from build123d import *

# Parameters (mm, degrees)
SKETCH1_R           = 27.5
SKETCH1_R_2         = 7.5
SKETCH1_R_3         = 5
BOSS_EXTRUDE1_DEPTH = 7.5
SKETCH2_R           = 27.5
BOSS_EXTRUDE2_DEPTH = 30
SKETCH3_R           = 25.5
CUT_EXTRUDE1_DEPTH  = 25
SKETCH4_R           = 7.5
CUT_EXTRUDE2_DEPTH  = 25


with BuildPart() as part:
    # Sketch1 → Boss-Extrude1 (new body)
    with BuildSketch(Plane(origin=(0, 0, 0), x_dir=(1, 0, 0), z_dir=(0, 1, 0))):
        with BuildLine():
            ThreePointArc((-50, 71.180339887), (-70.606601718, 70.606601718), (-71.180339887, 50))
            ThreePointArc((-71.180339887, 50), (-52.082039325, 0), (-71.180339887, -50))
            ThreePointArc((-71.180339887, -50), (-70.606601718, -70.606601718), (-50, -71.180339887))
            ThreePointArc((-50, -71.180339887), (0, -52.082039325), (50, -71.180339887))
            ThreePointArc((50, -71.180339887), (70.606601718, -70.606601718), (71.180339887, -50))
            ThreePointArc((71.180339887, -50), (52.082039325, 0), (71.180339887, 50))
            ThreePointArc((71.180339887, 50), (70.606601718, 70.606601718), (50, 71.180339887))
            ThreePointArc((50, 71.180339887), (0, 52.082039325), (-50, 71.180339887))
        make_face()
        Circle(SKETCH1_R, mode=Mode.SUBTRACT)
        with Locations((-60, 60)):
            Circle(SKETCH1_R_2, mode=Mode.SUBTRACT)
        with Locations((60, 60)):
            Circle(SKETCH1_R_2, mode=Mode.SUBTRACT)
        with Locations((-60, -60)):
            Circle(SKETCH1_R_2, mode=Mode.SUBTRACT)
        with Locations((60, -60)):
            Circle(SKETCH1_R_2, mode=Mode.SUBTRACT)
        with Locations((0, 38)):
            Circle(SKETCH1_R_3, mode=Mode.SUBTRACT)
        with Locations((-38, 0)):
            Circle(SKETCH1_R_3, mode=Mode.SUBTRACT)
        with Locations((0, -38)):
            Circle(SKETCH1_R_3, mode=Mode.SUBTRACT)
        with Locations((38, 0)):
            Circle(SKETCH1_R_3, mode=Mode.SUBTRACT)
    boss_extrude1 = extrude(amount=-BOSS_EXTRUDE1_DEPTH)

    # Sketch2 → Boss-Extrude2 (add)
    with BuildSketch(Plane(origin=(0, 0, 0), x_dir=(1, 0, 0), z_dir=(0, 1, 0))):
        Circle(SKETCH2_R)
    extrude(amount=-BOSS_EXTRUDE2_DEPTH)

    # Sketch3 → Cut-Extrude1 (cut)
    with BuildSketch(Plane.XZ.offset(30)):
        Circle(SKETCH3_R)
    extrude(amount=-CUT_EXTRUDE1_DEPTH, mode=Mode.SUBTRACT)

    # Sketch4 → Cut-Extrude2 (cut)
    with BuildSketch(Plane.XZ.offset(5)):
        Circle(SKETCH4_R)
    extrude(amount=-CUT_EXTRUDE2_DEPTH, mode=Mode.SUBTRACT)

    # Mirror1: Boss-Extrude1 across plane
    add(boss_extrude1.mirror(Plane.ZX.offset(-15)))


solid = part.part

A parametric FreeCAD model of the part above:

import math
import FreeCAD as App
import Part
import Sketcher
Q = App.Units.Quantity

doc = App.newDocument("Part")
params = doc.addObject("Spreadsheet::Sheet", "Params")
for row, (alias, value) in enumerate([
    ("sketch1_diameter", "15 mm"),
    ("sketch1_diameter2", "10 mm"),
    ("sketch1_diameter3", "55 mm"),
    ("sketch1_radius", "15 mm"),
    ("sketch1_radius2", "75 mm"),
    ("pad1_length", "7.5 mm"),
    ("sketch2_diameter", "55 mm"),
    ("pad2_length", "30 mm"),
    ("sketch3_diameter", "51 mm"),
    ("pocket1_length", "25 mm"),
    ("sketch4_diameter", "15 mm"),
    ("pocket2_length", "25 mm"),
], start=1):
    params.set(f"A{row}", alias)
    params.set(f"B{row}", "=" + value)
    params.setAlias(f"B{row}", alias)

body = doc.addObject("PartDesign::Body", "Body")

# Sketch on XZ plane
sketch1 = body.newObject("Sketcher::SketchObject", "Sketch")
sketch1.AttachmentSupport = (doc.getObject("XZ_Plane"), [""])
sketch1.MapMode = "FlatFace"
sketch1.addGeometry(Part.ArcOfCircle(Part.Circle(App.Vector(-60, -60, 0), App.Vector(0, 0, 1), 15), math.radians(138.189685), math.radians(311.810315)), False)
sketch1.addGeometry(Part.ArcOfCircle(Part.Circle(App.Vector(-127.082039, 0, 0), App.Vector(0, 0, 1), 75), math.radians(-41.810315), math.radians(41.810315)), False)
sketch1.addGeometry(Part.ArcOfCircle(Part.Circle(App.Vector(-60, 60, 0), App.Vector(0, 0, 1), 15), math.radians(48.189685), math.radians(221.810315)), False)
sketch1.addGeometry(Part.ArcOfCircle(Part.Circle(App.Vector(0, 127.082039, 0), App.Vector(0, 0, 1), 75), math.radians(-131.810315), math.radians(-48.189685)), False)
sketch1.addGeometry(Part.ArcOfCircle(Part.Circle(App.Vector(60, 60, 0), App.Vector(0, 0, 1), 15), math.radians(-41.810315), math.radians(131.810315)), False)
sketch1.addGeometry(Part.ArcOfCircle(Part.Circle(App.Vector(127.082039, 0, 0), App.Vector(0, 0, 1), 75), math.radians(138.189685), math.radians(221.810315)), False)
sketch1.addGeometry(Part.ArcOfCircle(Part.Circle(App.Vector(60, -60, 0), App.Vector(0, 0, 1), 15), math.radians(-131.810315), math.radians(41.810315)), False)
sketch1.addGeometry(Part.ArcOfCircle(Part.Circle(App.Vector(0, -127.082039, 0), App.Vector(0, 0, 1), 75), math.radians(48.189685), math.radians(131.810315)), False)
sketch1.addGeometry(Part.Circle(App.Vector(-60, 60, 0), App.Vector(0, 0, 1), 7.5), False)
sketch1.addGeometry(Part.Circle(App.Vector(0, 38, 0), App.Vector(0, 0, 1), 5), False)
sketch1.addGeometry(Part.Circle(App.Vector(60, 60, 0), App.Vector(0, 0, 1), 7.5), False)
sketch1.addGeometry(Part.Circle(App.Vector(-38, 0, 0), App.Vector(0, 0, 1), 5), False)
sketch1.addGeometry(Part.Circle(App.Vector(-60, -60, 0), App.Vector(0, 0, 1), 7.5), False)
sketch1.addGeometry(Part.Circle(App.Vector(0, 0, 0), App.Vector(0, 0, 1), 27.5), False)
sketch1.addGeometry(Part.Circle(App.Vector(38, 0, 0), App.Vector(0, 0, 1), 5), False)
sketch1.addGeometry(Part.Circle(App.Vector(0, -38, 0), App.Vector(0, 0, 1), 5), False)
sketch1.addGeometry(Part.Circle(App.Vector(60, -60, 0), App.Vector(0, 0, 1), 7.5), False)
sketch1.addConstraint(Sketcher.Constraint("Tangent", 0, 1, 1, 1))
sketch1.addConstraint(Sketcher.Constraint("Tangent", 1, 2, 2, 2))
sketch1.addConstraint(Sketcher.Constraint("Tangent", 2, 1, 3, 1))
sketch1.addConstraint(Sketcher.Constraint("Tangent", 3, 2, 4, 2))
sketch1.addConstraint(Sketcher.Constraint("Tangent", 4, 1, 5, 1))
sketch1.addConstraint(Sketcher.Constraint("Tangent", 5, 2, 6, 2))
sketch1.addConstraint(Sketcher.Constraint("Tangent", 6, 1, 7, 1))
sketch1.addConstraint(Sketcher.Constraint("Tangent", 7, 2, 0, 2))
sketch1.addConstraint(Sketcher.Constraint("Coincident", 13, 3, -1, 1))
sketch1.addConstraint(Sketcher.Constraint("Coincident", 8, 3, 2, 3))
sketch1.addConstraint(Sketcher.Constraint("Coincident", 10, 3, 4, 3))
sketch1.addConstraint(Sketcher.Constraint("Coincident", 12, 3, 0, 3))
sketch1.addConstraint(Sketcher.Constraint("Coincident", 16, 3, 6, 3))
sketch1.addConstraint(Sketcher.Constraint("Equal", 0, 2))
sketch1.addConstraint(Sketcher.Constraint("Equal", 1, 3))
sketch1.addConstraint(Sketcher.Constraint("Equal", 2, 4))
sketch1.addConstraint(Sketcher.Constraint("Equal", 3, 5))
sketch1.addConstraint(Sketcher.Constraint("Equal", 4, 6))
sketch1.addConstraint(Sketcher.Constraint("Equal", 5, 7))
sketch1.addConstraint(Sketcher.Constraint("Equal", 8, 10))
sketch1.addConstraint(Sketcher.Constraint("Equal", 9, 11))
sketch1.addConstraint(Sketcher.Constraint("Equal", 10, 12))
sketch1.addConstraint(Sketcher.Constraint("Equal", 11, 14))
sketch1.addConstraint(Sketcher.Constraint("Equal", 14, 15))
sketch1.addConstraint(Sketcher.Constraint("Equal", 12, 16))
sketch1.addConstraint(Sketcher.Constraint("Symmetric", 0, 3, 4, 3, -1, 1))
sketch1.addConstraint(Sketcher.Constraint("Symmetric", 2, 3, 6, 3, -1, 1))
sketch1.addConstraint(Sketcher.Constraint("Symmetric", 11, 3, 14, 3, -1, 1))
sketch1.addConstraint(Sketcher.Constraint("Symmetric", 9, 3, 15, 3, -1, 1))
sketch1.addConstraint(Sketcher.Constraint("Symmetric", 2, 3, 4, 3, -2))
sketch1.addConstraint(Sketcher.Constraint("PointOnObject", 9, 3, -2))
sketch1.addConstraint(Sketcher.Constraint("PointOnObject", 11, 3, -1))
sketch1.addConstraint(Sketcher.Constraint("Diameter", 8, Q("15 mm")))
sketch1.addConstraint(Sketcher.Constraint("Diameter", 9, Q("10 mm")))
sketch1.addConstraint(Sketcher.Constraint("Diameter", 13, Q("55 mm")))
sketch1.addConstraint(Sketcher.Constraint("Radius", 0, Q("15 mm")))
sketch1.addConstraint(Sketcher.Constraint("Radius", 1, Q("75 mm")))
sketch1.addConstraint(Sketcher.Constraint("DistanceX", 0, 3, -1, 1, Q("60 mm")))
sketch1.addConstraint(Sketcher.Constraint("DistanceY", 0, 3, -1, 1, Q("60 mm")))
sketch1.addConstraint(Sketcher.Constraint("DistanceY", -1, 1, 9, 3, Q("38 mm")))
sketch1.addConstraint(Sketcher.Constraint("DistanceX", 11, 3, -1, 1, Q("38 mm")))
sketch1.setExpression("Constraints[32]", "Params.sketch1_diameter")
sketch1.setExpression("Constraints[33]", "Params.sketch1_diameter2")
sketch1.setExpression("Constraints[34]", "Params.sketch1_diameter3")
sketch1.setExpression("Constraints[35]", "Params.sketch1_radius")
sketch1.setExpression("Constraints[36]", "Params.sketch1_radius2")
pad1 = body.newObject("PartDesign::Pad", "Pad")
pad1.Profile = sketch1
pad1.setExpression("Length", "Params.pad1_length")

# Sketch on XZ plane
sketch2 = body.newObject("Sketcher::SketchObject", "Sketch001")
sketch2.AttachmentSupport = (doc.getObject("XZ_Plane"), [""])
sketch2.MapMode = "FlatFace"
sketch2.addGeometry(Part.Circle(App.Vector(0, 0, 0), App.Vector(0, 0, 1), 27.5), False)
sketch2.addConstraint(Sketcher.Constraint("Coincident", 0, 3, -1, 1))
sketch2.addConstraint(Sketcher.Constraint("Diameter", 0, Q("55 mm")))
sketch2.setExpression("Constraints[1]", "Params.sketch2_diameter")
pad2 = body.newObject("PartDesign::Pad", "Pad001")
pad2.Profile = sketch2
pad2.setExpression("Length", "Params.pad2_length")

# Sketch on XZ plane
sketch3 = body.newObject("Sketcher::SketchObject", "Sketch002")
sketch3.AttachmentSupport = (doc.getObject("XZ_Plane"), [""])
sketch3.MapMode = "FlatFace"
sketch3.AttachmentOffset = App.Placement(App.Vector(0, 0, 30), App.Rotation())
sketch3.addGeometry(Part.Circle(App.Vector(0, 0, 0), App.Vector(0, 0, 1), 25.5), False)
sketch3.addConstraint(Sketcher.Constraint("Coincident", 0, 3, -1, 1))
sketch3.addConstraint(Sketcher.Constraint("Diameter", 0, Q("51 mm")))
sketch3.setExpression("Constraints[1]", "Params.sketch3_diameter")
pocket1 = body.newObject("PartDesign::Pocket", "Pocket")
pocket1.Profile = sketch3
pocket1.setExpression("Length", "Params.pocket1_length")

# Sketch on XZ plane
sketch4 = body.newObject("Sketcher::SketchObject", "Sketch003")
sketch4.AttachmentSupport = (doc.getObject("XZ_Plane"), [""])
sketch4.MapMode = "FlatFace"
sketch4.AttachmentOffset = App.Placement(App.Vector(0, 0, 5), App.Rotation())
sketch4.addGeometry(Part.Circle(App.Vector(0, 0, 0), App.Vector(0, 0, 1), 7.5), False)
sketch4.addConstraint(Sketcher.Constraint("Coincident", 0, 3, -1, 1))
sketch4.addConstraint(Sketcher.Constraint("Diameter", 0, Q("15 mm")))
sketch4.setExpression("Constraints[1]", "Params.sketch4_diameter")
pocket2 = body.newObject("PartDesign::Pocket", "Pocket001")
pocket2.Profile = sketch4
pocket2.setExpression("Length", "Params.pocket2_length")
doc.recompute()

datumplane = body.newObject("PartDesign::Plane", "DatumPlane")
datumplane.AttachmentSupport = (doc.getObject("XZ_Plane"), [""])
datumplane.MapMode = "FlatFace"
datumplane.AttachmentOffset = App.Placement(App.Vector(0, 0, 15), App.Rotation())
mirrored = body.newObject("PartDesign::Mirrored", "Mirrored")
mirrored.Originals = [pad1]
mirrored.MirrorPlane = (datumplane, [""])
body.Tip = mirrored

doc.recompute()
